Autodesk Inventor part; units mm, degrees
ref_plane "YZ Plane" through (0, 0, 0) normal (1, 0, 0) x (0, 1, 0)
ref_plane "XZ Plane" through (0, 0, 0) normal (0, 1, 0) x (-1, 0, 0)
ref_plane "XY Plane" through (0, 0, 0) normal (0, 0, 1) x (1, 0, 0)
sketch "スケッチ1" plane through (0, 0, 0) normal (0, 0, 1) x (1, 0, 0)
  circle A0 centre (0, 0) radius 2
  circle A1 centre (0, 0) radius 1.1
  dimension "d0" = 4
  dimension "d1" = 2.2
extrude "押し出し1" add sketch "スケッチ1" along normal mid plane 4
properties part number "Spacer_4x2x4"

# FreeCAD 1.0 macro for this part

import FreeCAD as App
import Part
import Sketcher

V = App.Vector

doc = App.newDocument("Part")
params = doc.addObject("Spreadsheet::Sheet", "Params")
for row, (alias, value) in enumerate([
    ("sketch1_diameter", "4 mm"),
    ("sketch1_diameter2", "2.2 mm"),
    ("pad1_length", "4 mm"),
], start=1):
    params.set(f"A{row}", alias)
    params.set(f"B{row}", "=" + value)
    params.setAlias(f"B{row}", alias)

body = doc.addObject("PartDesign::Body", "Body")

sketch1 = doc.addObject("Sketcher::SketchObject", "Sketch")
body.addObject(sketch1)
sketch1.AttachmentSupport = (doc.XY_Plane, [""])
sketch1.MapMode = "FlatFace"
sketch1.addGeometry(Part.Circle(V(0, 0, 0), V(0, 0, 1), 2), False)
sketch1.addGeometry(Part.Circle(V(0, 0, 0), V(0, 0, 1), 1.1), False)
sketch1.addConstraint(Sketcher.Constraint("Coincident", 0, 3, -1, 1))
sketch1.addConstraint(Sketcher.Constraint("Coincident", 1, 3, -1, 1))
sketch1.addConstraint(Sketcher.Constraint("Diameter", 0, 4.0))
sketch1.addConstraint(Sketcher.Constraint("Diameter", 1, 2.2))
sketch1.setExpression("Constraints[2]", "Params.sketch1_diameter")
sketch1.setExpression("Constraints[3]", "Params.sketch1_diameter2")
pad1 = doc.addObject("PartDesign::Pad", "Pad")
body.addObject(pad1)
pad1.Profile = sketch1
pad1.setExpression("Length", "Params.pad1_length")
pad1.Midplane = True

doc.recompute()
